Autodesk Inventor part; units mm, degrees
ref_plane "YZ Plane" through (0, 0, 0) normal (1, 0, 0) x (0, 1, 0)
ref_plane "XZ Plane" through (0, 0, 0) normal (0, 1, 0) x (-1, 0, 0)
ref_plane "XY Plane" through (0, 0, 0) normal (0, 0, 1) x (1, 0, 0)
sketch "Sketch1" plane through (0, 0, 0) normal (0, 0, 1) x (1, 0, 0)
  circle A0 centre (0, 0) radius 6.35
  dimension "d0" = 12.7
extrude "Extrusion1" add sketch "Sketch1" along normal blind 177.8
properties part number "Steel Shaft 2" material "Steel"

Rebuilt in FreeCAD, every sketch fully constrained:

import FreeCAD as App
import Part
import Sketcher
from FreeCAD import Vector
Q = App.Units.Quantity

doc = App.newDocument("Part")
body = doc.addObject("PartDesign::Body", "Body")

# Sketch on XY plane
sketch1 = body.newObject("Sketcher::SketchObject", "Sketch")
sketch1.AttachmentSupport = (doc.getObject("XY_Plane"), [""])
sketch1.MapMode = "FlatFace"
sketch1.addGeometry(Part.Circle(Vector(0, 0, 0), Vector(0, 0, 1), 6.35), False)
sketch1.addConstraint([
    Sketcher.Constraint("Coincident", 0, 3, -1, 1),
    Sketcher.Constraint("Diameter", 0, Q("0.5 in")),
])
pad1 = body.newObject("PartDesign::Pad", "Pad")
pad1.Profile = sketch1
pad1.Length = Q("7 in")

doc.recompute()
